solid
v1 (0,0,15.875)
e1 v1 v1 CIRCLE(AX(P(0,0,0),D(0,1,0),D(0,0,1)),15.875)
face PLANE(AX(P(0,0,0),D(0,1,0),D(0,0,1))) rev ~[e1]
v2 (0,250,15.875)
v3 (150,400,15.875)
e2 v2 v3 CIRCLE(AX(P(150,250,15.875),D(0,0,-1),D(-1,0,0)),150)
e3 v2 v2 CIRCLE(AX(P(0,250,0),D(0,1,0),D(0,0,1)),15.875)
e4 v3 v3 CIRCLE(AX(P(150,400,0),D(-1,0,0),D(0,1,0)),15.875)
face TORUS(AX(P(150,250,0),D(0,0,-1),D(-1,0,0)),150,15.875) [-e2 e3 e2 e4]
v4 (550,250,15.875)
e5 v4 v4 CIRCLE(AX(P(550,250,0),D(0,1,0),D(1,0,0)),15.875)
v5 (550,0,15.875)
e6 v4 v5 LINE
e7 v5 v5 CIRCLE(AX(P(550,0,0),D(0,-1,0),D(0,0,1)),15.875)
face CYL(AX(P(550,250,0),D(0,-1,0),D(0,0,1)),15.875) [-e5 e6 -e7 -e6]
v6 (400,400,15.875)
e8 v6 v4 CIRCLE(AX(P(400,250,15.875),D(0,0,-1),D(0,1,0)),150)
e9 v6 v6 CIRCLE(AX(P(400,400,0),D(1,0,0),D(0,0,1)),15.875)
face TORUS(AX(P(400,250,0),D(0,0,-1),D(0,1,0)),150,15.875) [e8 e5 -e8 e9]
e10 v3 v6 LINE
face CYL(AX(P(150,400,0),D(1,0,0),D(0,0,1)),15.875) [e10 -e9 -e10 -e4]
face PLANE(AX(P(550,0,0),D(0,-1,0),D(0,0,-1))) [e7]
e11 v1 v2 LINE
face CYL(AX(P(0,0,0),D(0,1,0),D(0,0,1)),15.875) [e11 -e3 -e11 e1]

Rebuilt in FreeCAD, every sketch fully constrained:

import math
import FreeCAD as App
import Part
import Sketcher
from FreeCAD import Vector
Q = App.Units.Quantity

doc = App.newDocument("Part")
body = doc.addObject("PartDesign::Body", "Body")

sketch1 = body.newObject("Sketcher::SketchObject", "Sketch")
sketch1.AttachmentSupport = (doc.getObject("XZ_Plane"), [""])
sketch1.MapMode = "FlatFace"
sketch1.addGeometry(Part.Circle(Vector(0, 0, 0), Vector(0, 0, 1), 16), False)
sketch1.addConstraint([
    Sketcher.Constraint("Coincident", 0, 3, -1, 1),
    Sketcher.Constraint("Diameter", 0, Q("31.75 mm")),
])

sketch2 = body.newObject("Sketcher::SketchObject", "Sketch001")
sketch2.AttachmentSupport = (doc.getObject("XY_Plane"), [""])
sketch2.MapMode = "FlatFace"
sketch2.addGeometry([
    Part.LineSegment(Vector(0, 0, 0), Vector(0, 250, 0)),
    Part.ArcOfCircle(Part.Circle(Vector(150, 250, 0), Vector(0, 0, 1), 150), math.radians(90), math.radians(180)),
    Part.LineSegment(Vector(150, 400, 0), Vector(400, 400, 0)),
    Part.ArcOfCircle(Part.Circle(Vector(400, 250, 0), Vector(0, 0, 1), 150), math.radians(0), math.radians(90)),
    Part.LineSegment(Vector(550, 250, 0), Vector(550, 0, 0)),
], False)
sketch2.addConstraint([
    Sketcher.Constraint("Tangent", 0, 2, 1, 2),
    Sketcher.Constraint("Tangent", 1, 1, 2, 1),
    Sketcher.Constraint("Tangent", 2, 2, 3, 2),
    Sketcher.Constraint("Tangent", 3, 1, 4, 1),
    Sketcher.Constraint("Vertical", 0),
    Sketcher.Constraint("Horizontal", 2),
    Sketcher.Constraint("Vertical", 4),
    Sketcher.Constraint("Coincident", 0, 1, -1, 1),
    Sketcher.Constraint("Equal", 1, 3),
    Sketcher.Constraint("PointOnObject", 4, 2, -1),
    Sketcher.Constraint("Equal", 2, 0),
    Sketcher.Constraint("Radius", 1, Q("150 mm")),
    Sketcher.Constraint("DistanceX", 2, 1, 2, 2, Q("250 mm")),
])
doc.recompute()

additivepipe = body.newObject("PartDesign::AdditivePipe", "AdditivePipe")
additivepipe.Profile = sketch1
additivepipe.Spine = (sketch2, ["Edge1", "Edge2", "Edge3", "Edge4", "Edge5"])

doc.recompute()
